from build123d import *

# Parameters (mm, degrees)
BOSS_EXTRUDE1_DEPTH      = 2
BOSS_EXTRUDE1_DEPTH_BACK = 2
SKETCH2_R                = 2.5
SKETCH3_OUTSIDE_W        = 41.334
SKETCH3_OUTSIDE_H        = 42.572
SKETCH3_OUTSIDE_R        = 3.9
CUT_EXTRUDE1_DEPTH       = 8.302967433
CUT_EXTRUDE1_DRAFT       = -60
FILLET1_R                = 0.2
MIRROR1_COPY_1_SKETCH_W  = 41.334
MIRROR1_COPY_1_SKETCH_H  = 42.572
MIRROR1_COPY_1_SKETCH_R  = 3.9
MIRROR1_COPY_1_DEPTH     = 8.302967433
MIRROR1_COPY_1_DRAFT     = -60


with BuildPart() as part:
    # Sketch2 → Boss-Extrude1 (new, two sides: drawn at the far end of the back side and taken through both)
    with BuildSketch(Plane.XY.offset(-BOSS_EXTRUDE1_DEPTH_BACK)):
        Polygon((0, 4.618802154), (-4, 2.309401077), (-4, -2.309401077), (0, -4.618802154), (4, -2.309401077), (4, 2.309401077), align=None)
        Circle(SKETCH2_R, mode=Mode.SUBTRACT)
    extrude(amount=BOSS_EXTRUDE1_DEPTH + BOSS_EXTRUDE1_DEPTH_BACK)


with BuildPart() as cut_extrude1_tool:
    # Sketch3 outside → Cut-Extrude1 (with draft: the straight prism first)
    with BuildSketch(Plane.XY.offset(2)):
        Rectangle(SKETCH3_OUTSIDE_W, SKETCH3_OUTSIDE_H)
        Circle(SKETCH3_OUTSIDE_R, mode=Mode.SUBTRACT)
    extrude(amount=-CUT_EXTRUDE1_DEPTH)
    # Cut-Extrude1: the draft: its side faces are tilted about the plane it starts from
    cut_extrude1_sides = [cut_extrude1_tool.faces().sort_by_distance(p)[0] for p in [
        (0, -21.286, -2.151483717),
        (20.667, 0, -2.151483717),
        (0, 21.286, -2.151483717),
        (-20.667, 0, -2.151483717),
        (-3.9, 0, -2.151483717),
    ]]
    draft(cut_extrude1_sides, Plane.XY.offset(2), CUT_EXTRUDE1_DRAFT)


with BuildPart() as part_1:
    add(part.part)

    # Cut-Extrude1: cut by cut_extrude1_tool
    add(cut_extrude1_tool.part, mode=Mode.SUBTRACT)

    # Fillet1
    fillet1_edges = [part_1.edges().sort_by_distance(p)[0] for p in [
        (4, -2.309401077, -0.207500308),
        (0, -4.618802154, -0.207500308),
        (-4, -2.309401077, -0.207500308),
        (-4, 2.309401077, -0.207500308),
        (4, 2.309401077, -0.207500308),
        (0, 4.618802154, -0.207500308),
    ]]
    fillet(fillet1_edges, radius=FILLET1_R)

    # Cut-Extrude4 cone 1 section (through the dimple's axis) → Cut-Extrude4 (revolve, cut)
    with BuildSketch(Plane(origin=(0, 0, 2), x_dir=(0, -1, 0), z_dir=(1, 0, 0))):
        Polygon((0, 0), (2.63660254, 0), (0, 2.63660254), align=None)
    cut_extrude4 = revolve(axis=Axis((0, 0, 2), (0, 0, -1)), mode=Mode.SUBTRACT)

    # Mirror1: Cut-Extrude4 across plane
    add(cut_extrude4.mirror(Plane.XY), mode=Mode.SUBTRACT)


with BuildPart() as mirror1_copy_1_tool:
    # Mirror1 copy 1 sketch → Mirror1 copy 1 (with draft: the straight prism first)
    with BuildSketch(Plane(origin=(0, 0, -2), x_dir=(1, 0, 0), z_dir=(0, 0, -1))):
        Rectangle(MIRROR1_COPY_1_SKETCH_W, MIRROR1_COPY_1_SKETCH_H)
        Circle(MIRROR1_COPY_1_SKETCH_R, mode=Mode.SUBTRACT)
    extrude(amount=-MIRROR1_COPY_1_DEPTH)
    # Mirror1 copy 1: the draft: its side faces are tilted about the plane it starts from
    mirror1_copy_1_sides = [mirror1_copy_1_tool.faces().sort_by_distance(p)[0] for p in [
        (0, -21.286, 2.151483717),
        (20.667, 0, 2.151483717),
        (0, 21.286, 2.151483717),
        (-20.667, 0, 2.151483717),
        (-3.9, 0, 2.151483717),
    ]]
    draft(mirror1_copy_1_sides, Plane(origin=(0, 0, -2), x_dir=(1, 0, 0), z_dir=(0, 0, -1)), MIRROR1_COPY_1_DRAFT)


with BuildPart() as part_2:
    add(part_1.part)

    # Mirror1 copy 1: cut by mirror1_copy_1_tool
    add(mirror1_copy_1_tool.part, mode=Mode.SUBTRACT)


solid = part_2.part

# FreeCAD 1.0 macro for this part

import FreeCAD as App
import Part
import Sketcher
from FreeCAD import Vector
Q = App.Units.Quantity


def edges_at(feature, points):
    """Names of the edges that pass closest to the given points."""
    edges = feature.Shape.Edges
    near = lambda p: min(range(len(edges)), key=lambda i: edges[i].distToShape(Part.Vertex(*p))[0])
    return sorted({f"Edge{near(p) + 1}" for p in points})


def faces_at(feature, points):
    """Names of the faces that lie closest to the given points."""
    faces = feature.Shape.Faces
    near = lambda p: min(range(len(faces)), key=lambda i: faces[i].distToShape(Part.Vertex(*p))[0])
    return sorted({f"Face{near(p) + 1}" for p in points})


def add_polygon(sketch, points):
    """Adds a closed chain of lines whose ends are joined by coincident constraints."""
    first, n = sketch.GeometryCount, len(points)
    for a, b in zip(points, points[1:] + points[:1]):
        sketch.addGeometry(Part.LineSegment(App.Vector(*a, 0), App.Vector(*b, 0)), False)
    for i in range(n):
        sketch.addConstraint(Sketcher.Constraint("Coincident", first + i, 2, first + (i + 1) % n, 1))

doc = App.newDocument("Part")
body = doc.addObject("PartDesign::Body", "Body")

# Sketch on XY plane
sketch1 = doc.addObject("Sketcher::SketchObject", "Sketch")
body.addObject(sketch1)
sketch1.AttachmentSupport = (doc.XY_Plane, [""])
sketch1.MapMode = "FlatFace"
add_polygon(sketch1, [(0, 4.6), (-4, 2.3), (-4, -2.3), (0, -4.6), (4, -2.3), (4, 2.3)])  # lines 0-5
sketch1.addGeometry(Part.Circle(Vector(0, 0, 0), Vector(0, 0, 1), 2.5), False)  # 6
sketch1.addConstraint([
    Sketcher.Constraint("Vertical", 1),
    Sketcher.Constraint("Vertical", 4),
    Sketcher.Constraint("Coincident", 6, 3, -1, 1),
    Sketcher.Constraint("Symmetric", 0, 2, 3, 2, -1, 1),
    Sketcher.Constraint("Symmetric", 2, 2, 5, 2, -1, 1),
    Sketcher.Constraint("PointOnObject", 2, 2, -2),
    Sketcher.Constraint("Parallel", 2, 5),
    Sketcher.Constraint("Horizontal", 1, 2, 3, 2),
    Sketcher.Constraint("Diameter", 6, 5.0),
    Sketcher.Constraint("Angle", 0, Q("-150 deg")),
    Sketcher.Constraint("DistanceX", 0, 2, -1, 1, 4.0),
    Sketcher.Constraint("DistanceY", -1, 1, 0, 2, 2.309401),
])
pad1 = doc.addObject("PartDesign::Pad", "Pad")
body.addObject(pad1)
pad1.Profile = sketch1
pad1.Type = "TwoLengths"
pad1.Length = 2
pad1.Length2 = 2
body2 = doc.addObject("PartDesign::Body", "Body001")

# Sketch on XY plane
sketch2 = doc.addObject("Sketcher::SketchObject", "Sketch001")
body2.addObject(sketch2)
sketch2.AttachmentSupport = (doc.getObject("XY_Plane001"), [""])
sketch2.MapMode = "FlatFace"
sketch2.AttachmentOffset = App.Placement(Vector(0, 0, 2), App.Rotation())
add_polygon(sketch2, [(-20.7, 21.3), (-20.7, -21.3), (20.7, -21.3), (20.7, 21.3)])  # lines 0-3
sketch2.addGeometry(Part.Circle(Vector(0, 0, 0), Vector(0, 0, 1), 3.9), False)  # 4
sketch2.addConstraint([
    Sketcher.Constraint("Vertical", 0),
    Sketcher.Constraint("Horizontal", 1),
    Sketcher.Constraint("Vertical", 2),
    Sketcher.Constraint("Horizontal", 3),
    Sketcher.Constraint("Coincident", 4, 3, -1, 1),
    Sketcher.Constraint("Symmetric", 0, 2, 2, 2, -1, 1),
    Sketcher.Constraint("Diameter", 4, 7.8),
    Sketcher.Constraint("DistanceX", 1, 1, 1, 2, 41.334),
    Sketcher.Constraint("DistanceY", 0, 2, 0, 1, 42.572),
])
pad2 = doc.addObject("PartDesign::Pad", "Pad001")
body2.addObject(pad2)
pad2.Profile = sketch2
pad2.Length = 8.302967
pad2.Reversed = True
doc.recompute()

datumplane = doc.addObject("PartDesign::Plane", "DatumPlane")
body2.addObject(datumplane)
datumplane.AttachmentSupport = (doc.getObject("XY_Plane001"), [""])
datumplane.MapMode = "FlatFace"
datumplane.AttachmentOffset = App.Placement(Vector(0, 0, 2), App.Rotation())
draft = doc.addObject("PartDesign::Draft", "Draft")
body2.addObject(draft)
draft.Base = (pad2, faces_at(pad2, [
    (0, -21.286, -2.151),
    (20.667, 0, -2.151),
    (0, 21.286, -2.151),
    (-20.667, 0, -2.151),
    (-3.9, 0, -2.151),
]))
draft.NeutralPlane = (datumplane, [""])
draft.Angle = 60
draft.Reversed = True
doc.recompute()

boolean = doc.addObject("PartDesign::Boolean", "Boolean")
body.addObject(boolean)
boolean.Type = "Cut"
boolean.addObjects([body2])
doc.recompute()

fillet = doc.addObject("PartDesign::Fillet", "Fillet")
body.addObject(fillet)
fillet.Base = (boolean, edges_at(boolean, [
    (4, -2.309, -0.208),
    (0, -4.619, -0.208),
    (-4, -2.309, -0.208),
    (-4, 2.309, -0.208),
    (4, 2.309, -0.208),
    (0, 4.619, -0.208),
]))
fillet.Radius = 0.2

# Sketch on YZ plane
sketch3 = doc.addObject("Sketcher::SketchObject", "Sketch002")
body.addObject(sketch3)
sketch3.AttachmentSupport = (doc.YZ_Plane, [""])
sketch3.MapMode = "FlatFace"
add_polygon(sketch3, [(0, 2), (-2.6, 2), (0, -0.6)])  # lines 0-2
sketch3.addConstraint([
    Sketcher.Constraint("Horizontal", 0),
    Sketcher.Constraint("Vertical", 2),
    Sketcher.Constraint("PointOnObject", 1, 2, -2),
    Sketcher.Constraint("Equal", 0, 2),
    Sketcher.Constraint("DistanceY", -1, 1, 0, 2, 2.0),
    Sketcher.Constraint("Distance", 1, 3.728719),
])
groove = doc.addObject("PartDesign::Groove", "Groove")
body.addObject(groove)
groove.Profile = sketch3
groove.ReferenceAxis = (sketch3, ["V_Axis"])
groove.Angle = 360
doc.recompute()

mirrored = doc.addObject("PartDesign::Mirrored", "Mirrored")
body.addObject(mirrored)
mirrored.Originals = [groove]
mirrored.MirrorPlane = (doc.XY_Plane, [""])
body.Tip = mirrored
body3 = doc.addObject("PartDesign::Body", "Body002")

# Sketch on XY plane
sketch4 = doc.addObject("Sketcher::SketchObject", "Sketch003")
body3.addObject(sketch4)
sketch4.AttachmentSupport = (doc.getObject("XY_Plane002"), [""])
sketch4.MapMode = "FlatFace"
sketch4.AttachmentOffset = App.Placement(Vector(0, 0, -2), App.Rotation())
add_polygon(sketch4, [(-20.7, -21.3), (-20.7, 21.3), (20.7, 21.3), (20.7, -21.3)])  # lines 0-3
sketch4.addGeometry(Part.Circle(Vector(0, 0, 0), Vector(0, 0, 1), 3.9), False)  # 4
sketch4.addConstraint([
    Sketcher.Constraint("Vertical", 0),
    Sketcher.Constraint("Horizontal", 1),
    Sketcher.Constraint("Vertical", 2),
    Sketcher.Constraint("Horizontal", 3),
    Sketcher.Constraint("Coincident", 4, 3, -1, 1),
    Sketcher.Constraint("Symmetric", 0, 2, 2, 2, -1, 1),
    Sketcher.Constraint("Diameter", 4, 7.8),
    Sketcher.Constraint("DistanceX", 1, 1, 1, 2, 41.334),
    Sketcher.Constraint("DistanceY", 0, 1, 0, 2, 42.572),
])
pad3 = doc.addObject("PartDesign::Pad", "Pad002")
body3.addObject(pad3)
pad3.Profile = sketch4
pad3.Length = 8.302967
doc.recompute()

datumplane2 = doc.addObject("PartDesign::Plane", "DatumPlane001")
body3.addObject(datumplane2)
datumplane2.AttachmentSupport = (doc.getObject("XY_Plane002"), [""])
datumplane2.MapMode = "FlatFace"
datumplane2.AttachmentOffset = App.Placement(Vector(0, 0, -2), App.Rotation())
draft2 = doc.addObject("PartDesign::Draft", "Draft001")
body3.addObject(draft2)
draft2.Base = (pad3, faces_at(pad3, [
    (0, -21.286, 2.151),
    (20.667, 0, 2.151),
    (0, 21.286, 2.151),
    (-20.667, 0, 2.151),
    (-3.9, 0, 2.151),
]))
draft2.NeutralPlane = (datumplane2, [""])
draft2.Angle = 60
draft2.Reversed = False
doc.recompute()

boolean2 = doc.addObject("PartDesign::Boolean", "Boolean001")
body.addObject(boolean2)
boolean2.Type = "Cut"
boolean2.addObjects([body3])

doc.recompute()
